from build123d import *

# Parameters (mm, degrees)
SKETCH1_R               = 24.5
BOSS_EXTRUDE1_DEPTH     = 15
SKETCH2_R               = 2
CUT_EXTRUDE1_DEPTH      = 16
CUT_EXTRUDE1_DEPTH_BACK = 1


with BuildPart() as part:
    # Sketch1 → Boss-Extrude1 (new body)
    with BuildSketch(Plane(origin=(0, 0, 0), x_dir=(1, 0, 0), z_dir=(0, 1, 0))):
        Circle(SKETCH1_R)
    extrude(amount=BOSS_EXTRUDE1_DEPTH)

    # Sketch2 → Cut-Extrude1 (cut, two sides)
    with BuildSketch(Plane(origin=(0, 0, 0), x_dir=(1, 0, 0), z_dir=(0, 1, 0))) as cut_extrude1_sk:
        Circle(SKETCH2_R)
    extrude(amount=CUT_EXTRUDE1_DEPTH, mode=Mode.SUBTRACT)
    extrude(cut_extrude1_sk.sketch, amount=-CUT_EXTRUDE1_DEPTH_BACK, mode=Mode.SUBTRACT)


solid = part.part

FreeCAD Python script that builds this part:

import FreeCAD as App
import Part
import Sketcher
from FreeCAD import Vector
Q = App.Units.Quantity

doc = App.newDocument("Part")
body = doc.addObject("PartDesign::Body", "Body")

# Sketch on XZ plane
sketch1 = body.newObject("Sketcher::SketchObject", "Sketch")
sketch1.AttachmentSupport = (doc.getObject("XZ_Plane"), [""])
sketch1.MapMode = "FlatFace"
sketch1.addGeometry(Part.Circle(Vector(0, 0, 0), Vector(0, 0, 1), 24.5), False)
sketch1.addConstraint(Sketcher.Constraint("Coincident", 0, 3, -1, 1))
sketch1.addConstraint(Sketcher.Constraint("Diameter", 0, Q("49 mm")))
pad1 = body.newObject("PartDesign::Pad", "Pad")
pad1.Profile = sketch1
pad1.Length = 15
pad1.Reversed = True

# Sketch on XZ plane
sketch2 = body.newObject("Sketcher::SketchObject", "Sketch001")
sketch2.AttachmentSupport = (doc.getObject("XZ_Plane"), [""])
sketch2.MapMode = "FlatFace"
sketch2.addGeometry(Part.Circle(Vector(0, 0, 0), Vector(0, 0, 1), 2), False)
sketch2.addConstraint(Sketcher.Constraint("Coincident", 0, 3, -1, 1))
sketch2.addConstraint(Sketcher.Constraint("Diameter", 0, Q("4 mm")))
pocket1 = body.newObject("PartDesign::Pocket", "Pocket")
pocket1.Profile = sketch2
pocket1.Type = "ThroughAll"
pocket1.Midplane = True

doc.recompute()
